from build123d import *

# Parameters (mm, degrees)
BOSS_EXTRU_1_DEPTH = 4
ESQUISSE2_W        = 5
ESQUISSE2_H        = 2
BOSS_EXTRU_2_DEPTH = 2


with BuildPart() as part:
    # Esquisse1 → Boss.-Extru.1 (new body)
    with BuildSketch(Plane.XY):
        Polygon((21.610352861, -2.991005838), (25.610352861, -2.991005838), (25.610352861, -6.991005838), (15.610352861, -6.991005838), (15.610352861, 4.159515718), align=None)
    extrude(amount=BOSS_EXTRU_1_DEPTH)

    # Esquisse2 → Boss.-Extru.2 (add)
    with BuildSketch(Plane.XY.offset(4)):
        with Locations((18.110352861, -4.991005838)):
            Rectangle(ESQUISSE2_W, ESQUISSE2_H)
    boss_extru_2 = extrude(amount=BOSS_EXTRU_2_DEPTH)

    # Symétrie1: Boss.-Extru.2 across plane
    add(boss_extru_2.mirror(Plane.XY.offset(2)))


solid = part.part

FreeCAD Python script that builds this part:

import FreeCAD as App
import Part
import Sketcher

V = App.Vector
Q = App.Units.Quantity


def add_polygon(sketch, points):
    """Adds a closed chain of lines whose ends are joined by coincident constraints."""
    first, n = sketch.GeometryCount, len(points)
    for a, b in zip(points, points[1:] + points[:1]):
        sketch.addGeometry(Part.LineSegment(App.Vector(*a, 0), App.Vector(*b, 0)), False)
    for i in range(n):
        sketch.addConstraint(Sketcher.Constraint("Coincident", first + i, 2, first + (i + 1) % n, 1))

doc = App.newDocument("Part")
body = doc.addObject("PartDesign::Body", "Body")

# Sketch on XY plane
sketch1 = body.newObject("Sketcher::SketchObject", "Sketch")
sketch1.AttachmentSupport = (doc.getObject("XY_Plane"), [""])
sketch1.MapMode = "FlatFace"
add_polygon(sketch1, [(25.610353, -2.991006), (21.610353, -2.991006), (15.610353, 4.159516), (15.610353, -6.991006), (25.610353, -6.991006)])  # lines 0-4
sketch1.addConstraint(Sketcher.Constraint("Horizontal", 0))
sketch1.addConstraint(Sketcher.Constraint("Vertical", 2))
sketch1.addConstraint(Sketcher.Constraint("Horizontal", 3))
sketch1.addConstraint(Sketcher.Constraint("Vertical", 4))
sketch1.addConstraint(Sketcher.Constraint("Equal", 0, 4))
sketch1.addConstraint(Sketcher.Constraint("DistanceX", 0, 2, 0, 1, Q("4 mm")))
sketch1.addConstraint(Sketcher.Constraint("DistanceX", 3, 1, 3, 2, Q("10 mm")))
sketch1.addConstraint(Sketcher.Constraint("Angle", 1, Q("130 deg")))
sketch1.addConstraint(Sketcher.Constraint("DistanceX", -1, 1, 0, 2, Q("21.610353 mm")))
sketch1.addConstraint(Sketcher.Constraint("DistanceY", 0, 2, -1, 1, Q("2.991006 mm")))
pad1 = body.newObject("PartDesign::Pad", "Pad")
pad1.Profile = sketch1
pad1.Length = 4

# Sketch on XY plane
sketch2 = body.newObject("Sketcher::SketchObject", "Sketch001")
sketch2.AttachmentSupport = (doc.getObject("XY_Plane"), [""])
sketch2.MapMode = "FlatFace"
sketch2.AttachmentOffset = App.Placement(V(0, 0, 4), App.Rotation())
add_polygon(sketch2, [(15.610353, -3.991006), (15.610353, -5.991006), (20.610353, -5.991006), (20.610353, -3.991006)])  # lines 0-3
sketch2.addConstraint(Sketcher.Constraint("Vertical", 0))
sketch2.addConstraint(Sketcher.Constraint("Horizontal", 1))
sketch2.addConstraint(Sketcher.Constraint("Vertical", 2))
sketch2.addConstraint(Sketcher.Constraint("Horizontal", 3))
sketch2.addConstraint(Sketcher.Constraint("DistanceX", 1, 1, 1, 2, Q("5 mm")))
sketch2.addConstraint(Sketcher.Constraint("DistanceY", 0, 2, 0, 1, Q("2 mm")))
sketch2.addConstraint(Sketcher.Constraint("DistanceX", -1, 1, 0, 2, Q("15.610353 mm")))
sketch2.addConstraint(Sketcher.Constraint("DistanceY", 0, 2, -1, 1, Q("5.991006 mm")))
pad2 = body.newObject("PartDesign::Pad", "Pad001")
pad2.Profile = sketch2
pad2.Length = 2
doc.recompute()

datumplane = body.newObject("PartDesign::Plane", "DatumPlane")
datumplane.AttachmentSupport = (doc.getObject("XY_Plane"), [""])
datumplane.MapMode = "FlatFace"
datumplane.AttachmentOffset = App.Placement(V(0, 0, 2), App.Rotation())
mirrored = body.newObject("PartDesign::Mirrored", "Mirrored")
mirrored.Originals = [pad2]
mirrored.MirrorPlane = (datumplane, [""])
body.Tip = mirrored

doc.recompute()
